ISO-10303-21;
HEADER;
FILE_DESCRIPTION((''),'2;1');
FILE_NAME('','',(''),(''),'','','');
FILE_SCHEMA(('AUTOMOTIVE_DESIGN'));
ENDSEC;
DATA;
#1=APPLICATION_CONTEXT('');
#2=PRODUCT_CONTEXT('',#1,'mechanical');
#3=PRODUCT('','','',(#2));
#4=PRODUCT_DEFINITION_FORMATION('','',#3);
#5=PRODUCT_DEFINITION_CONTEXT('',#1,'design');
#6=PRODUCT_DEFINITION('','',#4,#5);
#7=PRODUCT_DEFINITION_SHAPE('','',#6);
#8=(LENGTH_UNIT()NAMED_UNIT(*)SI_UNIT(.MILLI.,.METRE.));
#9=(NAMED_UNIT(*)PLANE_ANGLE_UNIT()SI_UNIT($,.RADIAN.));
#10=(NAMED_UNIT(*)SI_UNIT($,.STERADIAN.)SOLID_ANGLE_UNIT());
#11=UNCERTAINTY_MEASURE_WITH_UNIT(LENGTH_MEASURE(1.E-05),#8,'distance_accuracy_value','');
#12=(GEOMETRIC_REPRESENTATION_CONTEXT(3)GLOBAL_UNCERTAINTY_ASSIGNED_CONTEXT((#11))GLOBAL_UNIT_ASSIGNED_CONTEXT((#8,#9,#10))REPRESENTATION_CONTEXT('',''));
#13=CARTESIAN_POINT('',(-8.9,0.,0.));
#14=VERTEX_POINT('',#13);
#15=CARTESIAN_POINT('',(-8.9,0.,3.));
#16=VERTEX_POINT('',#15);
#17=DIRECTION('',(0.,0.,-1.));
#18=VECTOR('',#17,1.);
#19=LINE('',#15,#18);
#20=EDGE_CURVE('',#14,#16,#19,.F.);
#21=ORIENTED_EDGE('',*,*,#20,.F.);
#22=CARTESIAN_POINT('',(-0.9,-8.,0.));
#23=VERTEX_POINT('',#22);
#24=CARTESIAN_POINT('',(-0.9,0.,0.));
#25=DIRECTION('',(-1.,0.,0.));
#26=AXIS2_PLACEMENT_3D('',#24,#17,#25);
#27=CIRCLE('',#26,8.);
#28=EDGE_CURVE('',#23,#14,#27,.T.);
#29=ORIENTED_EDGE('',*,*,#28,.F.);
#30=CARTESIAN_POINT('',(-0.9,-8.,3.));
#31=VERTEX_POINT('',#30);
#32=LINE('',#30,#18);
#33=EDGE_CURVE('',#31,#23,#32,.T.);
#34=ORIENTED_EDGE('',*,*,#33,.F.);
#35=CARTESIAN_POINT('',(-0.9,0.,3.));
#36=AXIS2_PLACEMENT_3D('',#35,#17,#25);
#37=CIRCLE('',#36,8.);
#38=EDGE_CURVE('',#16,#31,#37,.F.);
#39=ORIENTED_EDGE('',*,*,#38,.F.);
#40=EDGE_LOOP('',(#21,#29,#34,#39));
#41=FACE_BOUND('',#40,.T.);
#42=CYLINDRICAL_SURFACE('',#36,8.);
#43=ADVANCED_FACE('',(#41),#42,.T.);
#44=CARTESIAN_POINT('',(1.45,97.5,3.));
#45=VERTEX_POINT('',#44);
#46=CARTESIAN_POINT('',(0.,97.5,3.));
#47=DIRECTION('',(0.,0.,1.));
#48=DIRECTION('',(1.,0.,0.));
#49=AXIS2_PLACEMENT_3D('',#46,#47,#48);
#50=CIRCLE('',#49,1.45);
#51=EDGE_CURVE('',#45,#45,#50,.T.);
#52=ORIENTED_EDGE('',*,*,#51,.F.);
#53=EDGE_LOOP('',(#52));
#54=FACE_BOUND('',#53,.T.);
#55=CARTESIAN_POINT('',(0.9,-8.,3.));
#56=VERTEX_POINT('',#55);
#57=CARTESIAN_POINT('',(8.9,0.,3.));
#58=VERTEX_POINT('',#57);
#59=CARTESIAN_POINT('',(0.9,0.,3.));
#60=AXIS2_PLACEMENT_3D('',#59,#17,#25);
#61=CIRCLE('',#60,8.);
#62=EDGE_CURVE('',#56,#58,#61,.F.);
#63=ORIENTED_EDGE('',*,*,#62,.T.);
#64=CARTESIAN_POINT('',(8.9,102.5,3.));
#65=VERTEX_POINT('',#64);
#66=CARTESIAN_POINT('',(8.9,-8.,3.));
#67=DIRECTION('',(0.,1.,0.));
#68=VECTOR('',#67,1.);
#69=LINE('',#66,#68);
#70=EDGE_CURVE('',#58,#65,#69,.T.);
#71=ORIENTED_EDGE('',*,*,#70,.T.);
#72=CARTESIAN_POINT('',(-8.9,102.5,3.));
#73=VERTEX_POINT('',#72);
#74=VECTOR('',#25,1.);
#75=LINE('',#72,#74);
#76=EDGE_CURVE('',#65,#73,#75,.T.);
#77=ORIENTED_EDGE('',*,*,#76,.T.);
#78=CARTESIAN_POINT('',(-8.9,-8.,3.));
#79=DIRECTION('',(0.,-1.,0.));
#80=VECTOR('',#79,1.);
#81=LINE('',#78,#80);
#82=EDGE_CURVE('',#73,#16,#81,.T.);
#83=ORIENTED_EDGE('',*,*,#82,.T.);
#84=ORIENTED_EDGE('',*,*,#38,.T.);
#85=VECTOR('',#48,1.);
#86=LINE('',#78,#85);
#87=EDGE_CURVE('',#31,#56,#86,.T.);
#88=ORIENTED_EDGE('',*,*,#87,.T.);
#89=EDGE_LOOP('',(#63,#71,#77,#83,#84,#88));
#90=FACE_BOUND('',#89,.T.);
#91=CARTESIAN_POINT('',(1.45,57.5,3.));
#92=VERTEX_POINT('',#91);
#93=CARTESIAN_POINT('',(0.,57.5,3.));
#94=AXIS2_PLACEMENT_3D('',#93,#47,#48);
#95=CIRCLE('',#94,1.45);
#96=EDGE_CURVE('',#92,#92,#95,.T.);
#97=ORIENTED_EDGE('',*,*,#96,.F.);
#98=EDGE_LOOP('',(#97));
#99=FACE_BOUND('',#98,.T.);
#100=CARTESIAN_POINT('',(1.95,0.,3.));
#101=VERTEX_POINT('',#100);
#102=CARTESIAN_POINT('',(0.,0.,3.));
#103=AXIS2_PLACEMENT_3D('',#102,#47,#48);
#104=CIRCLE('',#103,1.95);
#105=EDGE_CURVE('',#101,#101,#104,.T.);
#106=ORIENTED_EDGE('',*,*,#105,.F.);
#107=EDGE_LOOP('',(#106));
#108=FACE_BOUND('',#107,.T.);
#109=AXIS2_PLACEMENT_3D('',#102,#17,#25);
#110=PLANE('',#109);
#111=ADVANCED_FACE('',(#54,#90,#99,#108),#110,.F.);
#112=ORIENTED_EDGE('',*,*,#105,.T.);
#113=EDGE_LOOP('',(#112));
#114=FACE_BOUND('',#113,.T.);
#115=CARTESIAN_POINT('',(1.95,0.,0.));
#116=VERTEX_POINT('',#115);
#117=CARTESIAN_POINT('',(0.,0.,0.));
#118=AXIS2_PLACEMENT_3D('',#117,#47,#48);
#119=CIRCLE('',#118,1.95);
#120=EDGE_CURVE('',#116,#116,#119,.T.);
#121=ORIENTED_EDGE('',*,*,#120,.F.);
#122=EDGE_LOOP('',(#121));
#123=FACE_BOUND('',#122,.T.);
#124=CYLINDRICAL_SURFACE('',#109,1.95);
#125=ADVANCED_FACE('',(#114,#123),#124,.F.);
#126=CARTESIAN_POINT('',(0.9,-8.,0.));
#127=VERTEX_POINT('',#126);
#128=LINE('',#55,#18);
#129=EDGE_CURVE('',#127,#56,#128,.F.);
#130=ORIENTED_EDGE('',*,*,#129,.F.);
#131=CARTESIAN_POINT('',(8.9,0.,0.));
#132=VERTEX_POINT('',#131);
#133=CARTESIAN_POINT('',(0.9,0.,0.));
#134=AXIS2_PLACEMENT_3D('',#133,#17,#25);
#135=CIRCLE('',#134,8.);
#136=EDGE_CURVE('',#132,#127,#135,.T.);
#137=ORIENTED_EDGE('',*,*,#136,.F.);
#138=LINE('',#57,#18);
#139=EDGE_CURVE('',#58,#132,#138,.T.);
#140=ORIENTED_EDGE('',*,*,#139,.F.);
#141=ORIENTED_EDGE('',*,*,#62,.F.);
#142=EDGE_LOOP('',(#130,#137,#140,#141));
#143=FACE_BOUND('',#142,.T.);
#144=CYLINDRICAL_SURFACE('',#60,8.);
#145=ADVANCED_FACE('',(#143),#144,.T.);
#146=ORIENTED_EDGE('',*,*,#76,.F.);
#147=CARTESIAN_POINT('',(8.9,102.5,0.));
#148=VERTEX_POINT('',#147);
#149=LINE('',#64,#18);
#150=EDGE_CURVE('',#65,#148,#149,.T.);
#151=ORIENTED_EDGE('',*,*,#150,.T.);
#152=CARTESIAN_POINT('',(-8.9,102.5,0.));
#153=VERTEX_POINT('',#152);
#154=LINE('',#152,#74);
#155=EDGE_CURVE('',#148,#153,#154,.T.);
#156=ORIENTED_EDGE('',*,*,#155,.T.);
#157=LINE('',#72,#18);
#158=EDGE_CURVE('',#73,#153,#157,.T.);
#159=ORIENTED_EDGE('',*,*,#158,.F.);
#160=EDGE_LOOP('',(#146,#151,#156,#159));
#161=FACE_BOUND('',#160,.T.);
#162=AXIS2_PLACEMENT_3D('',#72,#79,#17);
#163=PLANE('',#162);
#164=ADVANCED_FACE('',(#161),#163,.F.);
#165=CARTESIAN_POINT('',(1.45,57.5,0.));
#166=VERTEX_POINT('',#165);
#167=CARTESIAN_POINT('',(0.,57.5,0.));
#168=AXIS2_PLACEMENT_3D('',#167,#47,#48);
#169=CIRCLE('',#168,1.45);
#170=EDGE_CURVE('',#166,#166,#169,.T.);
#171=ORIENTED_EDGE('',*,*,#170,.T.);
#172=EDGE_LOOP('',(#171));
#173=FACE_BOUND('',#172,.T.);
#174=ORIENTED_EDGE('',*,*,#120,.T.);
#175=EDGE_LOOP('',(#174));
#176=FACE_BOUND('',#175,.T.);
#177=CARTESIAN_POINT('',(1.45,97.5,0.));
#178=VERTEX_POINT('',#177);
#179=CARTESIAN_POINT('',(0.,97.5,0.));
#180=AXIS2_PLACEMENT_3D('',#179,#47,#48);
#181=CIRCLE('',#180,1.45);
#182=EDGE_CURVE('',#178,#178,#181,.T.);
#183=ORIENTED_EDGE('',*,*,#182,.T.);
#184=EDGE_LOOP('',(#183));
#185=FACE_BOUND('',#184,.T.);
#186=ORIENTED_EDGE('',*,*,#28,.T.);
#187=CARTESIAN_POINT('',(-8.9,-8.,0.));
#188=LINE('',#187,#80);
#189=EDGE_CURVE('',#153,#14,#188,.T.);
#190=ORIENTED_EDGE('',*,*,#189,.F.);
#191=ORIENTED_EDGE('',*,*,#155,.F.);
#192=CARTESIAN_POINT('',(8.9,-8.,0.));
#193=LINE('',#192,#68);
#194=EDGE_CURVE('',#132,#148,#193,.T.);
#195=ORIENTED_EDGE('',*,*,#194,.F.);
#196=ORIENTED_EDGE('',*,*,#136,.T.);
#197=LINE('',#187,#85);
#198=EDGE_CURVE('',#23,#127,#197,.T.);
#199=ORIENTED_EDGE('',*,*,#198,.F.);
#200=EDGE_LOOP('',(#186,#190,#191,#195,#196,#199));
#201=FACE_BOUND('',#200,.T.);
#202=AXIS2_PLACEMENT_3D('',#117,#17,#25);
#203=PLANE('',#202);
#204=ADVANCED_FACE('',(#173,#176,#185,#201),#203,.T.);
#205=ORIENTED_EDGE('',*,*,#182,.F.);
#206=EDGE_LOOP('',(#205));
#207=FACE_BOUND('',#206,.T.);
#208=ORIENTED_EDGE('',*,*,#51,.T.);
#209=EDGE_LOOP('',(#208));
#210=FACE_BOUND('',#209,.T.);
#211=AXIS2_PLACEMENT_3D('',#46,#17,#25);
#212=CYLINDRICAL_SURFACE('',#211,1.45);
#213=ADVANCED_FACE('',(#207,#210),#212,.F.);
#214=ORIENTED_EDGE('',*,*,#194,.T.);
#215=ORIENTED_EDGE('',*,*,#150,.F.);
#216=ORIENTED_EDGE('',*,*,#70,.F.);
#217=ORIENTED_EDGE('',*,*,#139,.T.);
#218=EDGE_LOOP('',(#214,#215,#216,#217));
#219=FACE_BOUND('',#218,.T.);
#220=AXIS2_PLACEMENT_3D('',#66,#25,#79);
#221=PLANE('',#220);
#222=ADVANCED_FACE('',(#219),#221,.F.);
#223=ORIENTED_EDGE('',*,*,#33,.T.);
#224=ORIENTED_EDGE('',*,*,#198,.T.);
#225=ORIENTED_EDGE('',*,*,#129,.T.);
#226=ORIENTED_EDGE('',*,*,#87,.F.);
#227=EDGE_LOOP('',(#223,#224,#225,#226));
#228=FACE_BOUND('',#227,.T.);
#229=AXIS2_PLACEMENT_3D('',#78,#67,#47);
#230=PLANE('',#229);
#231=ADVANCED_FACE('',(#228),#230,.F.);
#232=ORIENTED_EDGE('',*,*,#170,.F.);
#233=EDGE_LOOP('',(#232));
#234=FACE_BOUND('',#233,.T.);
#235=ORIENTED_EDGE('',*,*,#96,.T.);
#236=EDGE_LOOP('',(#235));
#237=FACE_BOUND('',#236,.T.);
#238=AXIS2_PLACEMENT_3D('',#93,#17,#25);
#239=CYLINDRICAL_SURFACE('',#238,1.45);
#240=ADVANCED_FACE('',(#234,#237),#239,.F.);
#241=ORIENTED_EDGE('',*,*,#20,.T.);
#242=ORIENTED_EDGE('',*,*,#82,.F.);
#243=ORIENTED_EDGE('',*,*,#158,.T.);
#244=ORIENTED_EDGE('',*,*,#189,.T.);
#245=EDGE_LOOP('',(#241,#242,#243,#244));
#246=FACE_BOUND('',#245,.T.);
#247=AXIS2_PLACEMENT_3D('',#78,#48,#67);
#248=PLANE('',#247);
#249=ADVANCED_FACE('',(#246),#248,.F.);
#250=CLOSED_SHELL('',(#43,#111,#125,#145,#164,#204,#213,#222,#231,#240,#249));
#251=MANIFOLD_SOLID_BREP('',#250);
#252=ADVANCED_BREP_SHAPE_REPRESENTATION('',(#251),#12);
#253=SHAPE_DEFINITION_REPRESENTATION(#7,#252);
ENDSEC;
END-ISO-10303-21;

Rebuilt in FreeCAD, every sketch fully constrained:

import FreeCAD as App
import Part
import Sketcher
from FreeCAD import Vector


def edges_at(feature, points):
    """Names of the edges that pass closest to the given points."""
    edges = feature.Shape.Edges
    near = lambda p: min(range(len(edges)), key=lambda i: edges[i].distToShape(Part.Vertex(*p))[0])
    return sorted({f"Edge{near(p) + 1}" for p in points})


def add_polygon(sketch, points):
    """Adds a closed chain of lines whose ends are joined by coincident constraints."""
    first, n = sketch.GeometryCount, len(points)
    for a, b in zip(points, points[1:] + points[:1]):
        sketch.addGeometry(Part.LineSegment(App.Vector(*a, 0), App.Vector(*b, 0)), False)
    for i in range(n):
        sketch.addConstraint(Sketcher.Constraint("Coincident", first + i, 2, first + (i + 1) % n, 1))

doc = App.newDocument("Part")
body = doc.addObject("PartDesign::Body", "Body")

# Sketch on XY plane
sketch1 = body.newObject("Sketcher::SketchObject", "Sketch")
sketch1.AttachmentSupport = (doc.getObject("XY_Plane"), [""])
sketch1.MapMode = "FlatFace"
add_polygon(sketch1, [(-8.9, 102.5), (-8.9, -8), (8.9, -8), (8.9, 102.5)])  # lines 0-3
sketch1.addGeometry(Part.Circle(Vector(0, 0, 0), Vector(0, 0, 1), 1.9), False)  # 4
sketch1.addGeometry(Part.Circle(Vector(0, 57.5, 0), Vector(0, 0, 1), 1.4), False)  # 5
sketch1.addGeometry(Part.Circle(Vector(0, 97.5, 0), Vector(0, 0, 1), 1.4), False)  # 6
sketch1.addConstraint([
    Sketcher.Constraint("Vertical", 0),
    Sketcher.Constraint("Horizontal", 1),
    Sketcher.Constraint("Vertical", 2),
    Sketcher.Constraint("Horizontal", 3),
    Sketcher.Constraint("Coincident", 4, 3, -1, 1),
    Sketcher.Constraint("Equal", 5, 6),
    Sketcher.Constraint("PointOnObject", 5, 3, -2),
    Sketcher.Constraint("PointOnObject", 6, 3, -2),
    Sketcher.Constraint("Diameter", 4, 3.9),
    Sketcher.Constraint("Diameter", 5, 2.9),
    Sketcher.Constraint("DistanceX", 1, 1, 1, 2, 17.8),
    Sketcher.Constraint("DistanceY", 0, 2, 0, 1, 110.5),
    Sketcher.Constraint("DistanceY", 0, 2, -1, 1, 8.0),
    Sketcher.Constraint("DistanceY", 5, 3, 6, 3, 40.0),
    Sketcher.Constraint("DistanceY", 6, 3, 2, 2, 5.0),
    Sketcher.Constraint("DistanceX", 0, 2, -1, 1, 8.9),
])
pad1 = body.newObject("PartDesign::Pad", "Pad")
pad1.Profile = sketch1
pad1.Length = 3
doc.recompute()

fillet = body.newObject("PartDesign::Fillet", "Fillet")
fillet.Base = (pad1, edges_at(pad1, [(8.9, -8, 1.5), (-8.9, -8, 1.5)]))
fillet.Radius = 8

doc.recompute()
